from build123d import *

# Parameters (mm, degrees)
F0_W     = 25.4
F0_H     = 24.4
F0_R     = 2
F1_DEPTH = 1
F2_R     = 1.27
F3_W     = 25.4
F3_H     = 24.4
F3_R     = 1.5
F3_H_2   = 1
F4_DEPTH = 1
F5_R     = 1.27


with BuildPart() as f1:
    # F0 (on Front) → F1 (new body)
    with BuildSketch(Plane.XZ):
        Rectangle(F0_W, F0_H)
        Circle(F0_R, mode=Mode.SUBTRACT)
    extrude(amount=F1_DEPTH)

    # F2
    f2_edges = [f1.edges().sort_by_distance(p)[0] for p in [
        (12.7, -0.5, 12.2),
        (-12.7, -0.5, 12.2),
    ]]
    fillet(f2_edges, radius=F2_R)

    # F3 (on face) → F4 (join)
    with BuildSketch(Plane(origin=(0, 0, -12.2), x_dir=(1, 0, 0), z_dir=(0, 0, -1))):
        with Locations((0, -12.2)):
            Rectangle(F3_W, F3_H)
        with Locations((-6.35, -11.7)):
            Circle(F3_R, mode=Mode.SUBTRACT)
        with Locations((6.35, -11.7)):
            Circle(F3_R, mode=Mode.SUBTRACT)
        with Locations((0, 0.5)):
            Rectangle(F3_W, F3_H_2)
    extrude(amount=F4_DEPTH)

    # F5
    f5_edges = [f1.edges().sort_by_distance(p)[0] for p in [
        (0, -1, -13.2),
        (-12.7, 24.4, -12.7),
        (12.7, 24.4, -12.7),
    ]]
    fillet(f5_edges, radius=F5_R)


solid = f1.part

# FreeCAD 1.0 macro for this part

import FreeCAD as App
import Part
import Sketcher

V = App.Vector
Q = App.Units.Quantity


def edges_at(feature, points):
    """Names of the edges that pass closest to the given points."""
    edges = feature.Shape.Edges
    near = lambda p: min(range(len(edges)), key=lambda i: edges[i].distToShape(Part.Vertex(*p))[0])
    return sorted({f"Edge{near(p) + 1}" for p in points})

doc = App.newDocument("Part")
body = doc.addObject("PartDesign::Body", "Body")

# Sketch on XZ plane
sketch1 = body.newObject("Sketcher::SketchObject", "Sketch")
sketch1.AttachmentSupport = (doc.getObject("XZ_Plane"), [""])
sketch1.MapMode = "FlatFace"
sketch1.addGeometry(Part.LineSegment(V(-12.7, 12.2, 0), V(-12.7, -12.2, 0)), False)
sketch1.addGeometry(Part.LineSegment(V(-12.7, -12.2, 0), V(12.7, -12.2, 0)), False)
sketch1.addGeometry(Part.LineSegment(V(12.7, -12.2, 0), V(12.7, 12.2, 0)), False)
sketch1.addGeometry(Part.LineSegment(V(12.7, 12.2, 0), V(-12.7, 12.2, 0)), False)
sketch1.addGeometry(Part.Circle(V(0, 0, 0), V(0, 0, 1), 2), False)
sketch1.addConstraint(Sketcher.Constraint("Coincident", 0, 2, 1, 1))
sketch1.addConstraint(Sketcher.Constraint("Coincident", 1, 2, 2, 1))
sketch1.addConstraint(Sketcher.Constraint("Coincident", 2, 2, 3, 1))
sketch1.addConstraint(Sketcher.Constraint("Coincident", 3, 2, 0, 1))
sketch1.addConstraint(Sketcher.Constraint("Vertical", 0))
sketch1.addConstraint(Sketcher.Constraint("Horizontal", 1))
sketch1.addConstraint(Sketcher.Constraint("Vertical", 2))
sketch1.addConstraint(Sketcher.Constraint("Horizontal", 3))
sketch1.addConstraint(Sketcher.Constraint("Coincident", 4, 3, -1, 1))
sketch1.addConstraint(Sketcher.Constraint("Symmetric", 0, 2, 2, 2, -1, 1))
sketch1.addConstraint(Sketcher.Constraint("Diameter", 4, Q("4 mm")))
sketch1.addConstraint(Sketcher.Constraint("DistanceX", 1, 1, 1, 2, Q("25.4 mm")))
sketch1.addConstraint(Sketcher.Constraint("DistanceY", 0, 2, 0, 1, Q("24.4 mm")))
pad1 = body.newObject("PartDesign::Pad", "Pad")
pad1.Profile = sketch1
pad1.Length = 1
doc.recompute()

fillet = body.newObject("PartDesign::Fillet", "Fillet")
fillet.Base = (pad1, edges_at(pad1, [(12.7, -0.5, 12.2), (-12.7, -0.5, 12.2)]))
fillet.Radius = 1.27

# Sketch on XY plane
sketch2 = body.newObject("Sketcher::SketchObject", "Sketch001")
sketch2.AttachmentSupport = (doc.getObject("XY_Plane"), [""])
sketch2.MapMode = "FlatFace"
sketch2.AttachmentOffset = App.Placement(V(0, 0, -12.2), App.Rotation())
sketch2.addGeometry(Part.LineSegment(V(-12.7, 24.4, 0), V(12.7, 24.4, 0)), False)
sketch2.addGeometry(Part.LineSegment(V(12.7, 24.4, 0), V(12.7, -1, 0)), False)
sketch2.addGeometry(Part.LineSegment(V(12.7, -1, 0), V(-12.7, -1, 0)), False)
sketch2.addGeometry(Part.LineSegment(V(-12.7, -1, 0), V(-12.7, 24.4, 0)), False)
sketch2.addGeometry(Part.Circle(V(-6.3, 11.7, 0), V(0, 0, 1), 1.5), False)
sketch2.addGeometry(Part.Circle(V(6.3, 11.7, 0), V(0, 0, 1), 1.5), False)
sketch2.addConstraint(Sketcher.Constraint("Coincident", 0, 2, 1, 1))
sketch2.addConstraint(Sketcher.Constraint("Coincident", 1, 2, 2, 1))
sketch2.addConstraint(Sketcher.Constraint("Coincident", 2, 2, 3, 1))
sketch2.addConstraint(Sketcher.Constraint("Coincident", 3, 2, 0, 1))
sketch2.addConstraint(Sketcher.Constraint("Horizontal", 0))
sketch2.addConstraint(Sketcher.Constraint("Vertical", 1))
sketch2.addConstraint(Sketcher.Constraint("Horizontal", 2))
sketch2.addConstraint(Sketcher.Constraint("Vertical", 3))
sketch2.addConstraint(Sketcher.Constraint("Equal", 4, 5))
sketch2.addConstraint(Sketcher.Constraint("Symmetric", 4, 3, 5, 3, -2))
sketch2.addConstraint(Sketcher.Constraint("Equal", 2, 1))
sketch2.addConstraint(Sketcher.Constraint("Diameter", 4, Q("3 mm")))
sketch2.addConstraint(Sketcher.Constraint("DistanceX", 0, 1, 0, 2, Q("25.4 mm")))
sketch2.addConstraint(Sketcher.Constraint("DistanceY", 1, 2, -1, 1, Q("1 mm")))
sketch2.addConstraint(Sketcher.Constraint("DistanceY", -1, 1, 4, 3, Q("11.7 mm")))
sketch2.addConstraint(Sketcher.Constraint("DistanceX", -1, 1, 0, 2, Q("12.7 mm")))
sketch2.addConstraint(Sketcher.Constraint("DistanceX", 4, 3, 5, 3, Q("12.7 mm")))
pad2 = body.newObject("PartDesign::Pad", "Pad001")
pad2.Profile = sketch2
pad2.Length = 1
pad2.Reversed = True
doc.recompute()

fillet2 = body.newObject("PartDesign::Fillet", "Fillet001")
fillet2.Base = (pad2, edges_at(pad2, [(0, -1, -13.2), (-12.7, 24.4, -12.7), (12.7, 24.4, -12.7)]))
fillet2.Radius = 1.27

doc.recompute()
